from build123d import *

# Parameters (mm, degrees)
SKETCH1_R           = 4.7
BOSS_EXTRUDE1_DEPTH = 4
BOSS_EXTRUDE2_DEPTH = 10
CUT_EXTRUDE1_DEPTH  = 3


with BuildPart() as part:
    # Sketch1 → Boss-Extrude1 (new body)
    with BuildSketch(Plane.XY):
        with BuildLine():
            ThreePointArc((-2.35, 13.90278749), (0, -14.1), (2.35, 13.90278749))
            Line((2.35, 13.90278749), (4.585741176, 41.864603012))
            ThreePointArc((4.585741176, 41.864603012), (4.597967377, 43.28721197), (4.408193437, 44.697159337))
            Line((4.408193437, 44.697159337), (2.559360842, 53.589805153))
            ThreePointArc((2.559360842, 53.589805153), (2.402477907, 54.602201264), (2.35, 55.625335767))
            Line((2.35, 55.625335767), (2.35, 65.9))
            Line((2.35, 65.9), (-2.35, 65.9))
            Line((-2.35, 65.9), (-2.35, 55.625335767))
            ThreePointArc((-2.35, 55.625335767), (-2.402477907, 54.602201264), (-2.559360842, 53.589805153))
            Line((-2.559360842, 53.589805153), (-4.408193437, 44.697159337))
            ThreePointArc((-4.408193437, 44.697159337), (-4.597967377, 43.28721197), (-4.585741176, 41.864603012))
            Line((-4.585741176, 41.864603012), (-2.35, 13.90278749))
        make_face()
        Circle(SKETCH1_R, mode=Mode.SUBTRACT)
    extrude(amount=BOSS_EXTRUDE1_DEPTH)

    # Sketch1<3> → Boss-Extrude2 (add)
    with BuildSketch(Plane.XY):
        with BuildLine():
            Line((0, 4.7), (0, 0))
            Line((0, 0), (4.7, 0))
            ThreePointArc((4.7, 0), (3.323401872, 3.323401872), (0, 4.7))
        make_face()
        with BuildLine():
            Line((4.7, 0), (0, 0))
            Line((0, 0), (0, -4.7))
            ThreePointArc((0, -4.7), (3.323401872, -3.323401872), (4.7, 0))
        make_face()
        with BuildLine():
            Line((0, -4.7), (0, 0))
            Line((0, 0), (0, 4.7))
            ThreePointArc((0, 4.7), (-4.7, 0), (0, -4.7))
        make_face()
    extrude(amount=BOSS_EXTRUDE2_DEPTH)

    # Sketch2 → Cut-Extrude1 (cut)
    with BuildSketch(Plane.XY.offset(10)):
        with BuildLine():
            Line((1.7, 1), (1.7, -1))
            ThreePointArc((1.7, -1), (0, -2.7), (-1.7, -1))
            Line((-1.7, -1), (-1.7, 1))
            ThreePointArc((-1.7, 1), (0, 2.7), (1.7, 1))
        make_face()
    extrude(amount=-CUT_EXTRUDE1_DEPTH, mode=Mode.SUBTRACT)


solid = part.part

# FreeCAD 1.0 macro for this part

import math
import FreeCAD as App
import Part
import Sketcher

V = App.Vector

doc = App.newDocument("Part")
params = doc.addObject("Spreadsheet::Sheet", "Params")
for row, (alias, value) in enumerate([
    ("sketch1_radius", "10 mm"),
    ("sketch1_diameter", "9.4 mm"),
    ("sketch1_radius2", "14.1 mm"),
    ("sketch1_width", "4.7 mm"),
    ("pad1_length", "4 mm"),
    ("sketch2_radius", "4.7 mm"),
    ("pad2_length", "10 mm"),
    ("sketch3_radius", "1.7 mm"),
    ("sketch3_height", "2 mm"),
    ("pocket1_length", "3 mm"),
], start=1):
    params.set(f"A{row}", alias)
    params.set(f"B{row}", "=" + value)
    params.setAlias(f"B{row}", alias)

body = doc.addObject("PartDesign::Body", "Body")

# Sketch on XY plane
sketch1 = body.newObject("Sketcher::SketchObject", "Sketch")
sketch1.AttachmentSupport = (doc.getObject("XY_Plane"), [""])
sketch1.MapMode = "FlatFace"
sketch1.addGeometry([
    Part.ArcOfCircle(Part.Circle(V(0, 0, 0), V(0, 0, 1), 14.1), math.radians(100), math.radians(440)),  # 0
    Part.LineSegment(V(2.4, 13.9, 0), V(4.6, 41.9, 0)),  # 1
    Part.ArcOfCircle(Part.Circle(V(-5.4, 42.7, 0), V(0, 0, 1), 10), math.radians(-4.57), math.radians(11.74)),  # 2
    Part.LineSegment(V(4.4, 44.7, 0), V(2.6, 53.6, 0)),  # 3
    Part.ArcOfCircle(Part.Circle(V(12.3, 55.6, 0), V(0, 0, 1), 10), math.radians(180), math.radians(191.74)),  # 4
    Part.LineSegment(V(2.4, 55.6, 0), V(2.4, 65.9, 0)),  # 5
    Part.LineSegment(V(2.4, 65.9, 0), V(-2.4, 65.9, 0)),  # 6
    Part.LineSegment(V(-2.4, 65.9, 0), V(-2.4, 55.6, 0)),  # 7
    Part.ArcOfCircle(Part.Circle(V(-12.3, 55.6, 0), V(0, 0, 1), 10), math.radians(-11.74), math.radians(0)),  # 8
    Part.LineSegment(V(-2.6, 53.6, 0), V(-4.4, 44.7, 0)),  # 9
    Part.ArcOfCircle(Part.Circle(V(5.4, 42.7, 0), V(0, 0, 1), 10), math.radians(168.26), math.radians(184.57)),  # 10
    Part.LineSegment(V(-4.6, 41.9, 0), V(-2.4, 13.9, 0)),  # 11
    Part.Circle(V(0, 0, 0), V(0, 0, 1), 4.7),  # 12
], False)
sketch1.addConstraint([
    Sketcher.Constraint("Coincident", 0, 2, 1, 1),
    Sketcher.Constraint("Tangent", 1, 2, 2, 1),
    Sketcher.Constraint("Tangent", 2, 2, 3, 1),
    Sketcher.Constraint("Tangent", 3, 2, 4, 2),
    Sketcher.Constraint("Tangent", 4, 1, 5, 1),
    Sketcher.Constraint("Coincident", 5, 2, 6, 1),
    Sketcher.Constraint("Coincident", 6, 2, 7, 1),
    Sketcher.Constraint("Tangent", 7, 2, 8, 2),
    Sketcher.Constraint("Tangent", 8, 1, 9, 1),
    Sketcher.Constraint("Tangent", 9, 2, 10, 1),
    Sketcher.Constraint("Tangent", 10, 2, 11, 1),
    Sketcher.Constraint("Coincident", 11, 2, 0, 1),
    Sketcher.Constraint("Vertical", 5),
    Sketcher.Constraint("Horizontal", 6),
    Sketcher.Constraint("Vertical", 7),
    Sketcher.Constraint("Coincident", 0, 3, -1, 1),
    Sketcher.Constraint("Coincident", 12, 3, -1, 1),
    Sketcher.Constraint("Equal", 2, 4),
    Sketcher.Constraint("Equal", 4, 8),
    Sketcher.Constraint("Equal", 8, 10),
    Sketcher.Constraint("Symmetric", 4, 3, 8, 3, -2),
    Sketcher.Constraint("Symmetric", 2, 3, 10, 3, -2),
    Sketcher.Constraint("Horizontal", 1, 2, 10, 2),
    Sketcher.Constraint("Vertical", 0, 2, 4, 1),
    Sketcher.Constraint("Radius", 2, 10.0),
    Sketcher.Constraint("Diameter", 12, 9.4),
    Sketcher.Constraint("Radius", 0, 14.1),
    Sketcher.Constraint("DistanceX", 6, 2, 6, 1, 4.7),
    Sketcher.Constraint("DistanceY", -1, 1, 5, 2, 65.9),
    Sketcher.Constraint("DistanceY", 5, 1, 5, 2, 10.274664),
    Sketcher.Constraint("DistanceY", -1, 1, 2, 3, 42.661629),
    Sketcher.Constraint("DistanceX", -1, 1, 1, 2, 4.585741),
])
sketch1.setExpression("Constraints[24]", "Params.sketch1_radius")
sketch1.setExpression("Constraints[25]", "Params.sketch1_diameter")
sketch1.setExpression("Constraints[26]", "Params.sketch1_radius2")
sketch1.setExpression("Constraints[27]", "Params.sketch1_width")
pad1 = body.newObject("PartDesign::Pad", "Pad")
pad1.Profile = sketch1
pad1.setExpression("Length", "Params.pad1_length")

# Sketch on XY plane
sketch2 = body.newObject("Sketcher::SketchObject", "Sketch001")
sketch2.AttachmentSupport = (doc.getObject("XY_Plane"), [""])
sketch2.MapMode = "FlatFace"
sketch2.addGeometry([
    Part.ArcOfCircle(Part.Circle(V(0, 0, 0), V(0, 0, 1), 4.7), math.radians(-90), math.radians(0)),
    Part.ArcOfCircle(Part.Circle(V(0, 0, 0), V(0, 0, 1), 4.7), math.radians(0), math.radians(90)),
    Part.ArcOfCircle(Part.Circle(V(0, 0, 0), V(0, 0, 1), 4.7), math.radians(90), math.radians(270)),
], False)
sketch2.addConstraint([
    Sketcher.Constraint("Tangent", 0, 2, 1, 1),
    Sketcher.Constraint("Tangent", 1, 2, 2, 1),
    Sketcher.Constraint("Tangent", 2, 2, 0, 1),
    Sketcher.Constraint("Coincident", 0, 3, -1, 1),
    Sketcher.Constraint("PointOnObject", 0, 2, -1),
    Sketcher.Constraint("PointOnObject", 1, 2, -2),
    Sketcher.Constraint("PointOnObject", 2, 2, -2),
    Sketcher.Constraint("Radius", 0, 4.7),
])
sketch2.setExpression("Constraints[7]", "Params.sketch2_radius")
pad2 = body.newObject("PartDesign::Pad", "Pad001")
pad2.Profile = sketch2
pad2.setExpression("Length", "Params.pad2_length")

# Sketch on XY plane
sketch3 = body.newObject("Sketcher::SketchObject", "Sketch002")
sketch3.AttachmentSupport = (doc.getObject("XY_Plane"), [""])
sketch3.MapMode = "FlatFace"
sketch3.AttachmentOffset = App.Placement(V(0, 0, 10), App.Rotation())
sketch3.addGeometry([
    Part.LineSegment(V(1.7, -1, 0), V(1.7, 1, 0)),
    Part.ArcOfCircle(Part.Circle(V(0, 1, 0), V(0, 0, 1), 1.7), math.radians(0), math.radians(180)),
    Part.LineSegment(V(-1.7, 1, 0), V(-1.7, -1, 0)),
    Part.ArcOfCircle(Part.Circle(V(0, -1, 0), V(0, 0, 1), 1.7), math.radians(180), math.radians(360)),
], False)
sketch3.addConstraint([
    Sketcher.Constraint("Tangent", 0, 2, 1, 1),
    Sketcher.Constraint("Tangent", 1, 2, 2, 1),
    Sketcher.Constraint("Tangent", 2, 2, 3, 1),
    Sketcher.Constraint("Tangent", 3, 2, 0, 1),
    Sketcher.Constraint("Vertical", 0),
    Sketcher.Constraint("Vertical", 2),
    Sketcher.Constraint("Symmetric", 1, 3, 3, 3, -1, 1),
    Sketcher.Constraint("Radius", 1, 1.7),
    Sketcher.Constraint("DistanceY", 0, 1, 0, 2, 2.0),
])
sketch3.setExpression("Constraints[7]", "Params.sketch3_radius")
sketch3.setExpression("Constraints[8]", "Params.sketch3_height")
pocket1 = body.newObject("PartDesign::Pocket", "Pocket")
pocket1.Profile = sketch3
pocket1.setExpression("Length", "Params.pocket1_length")

doc.recompute()
